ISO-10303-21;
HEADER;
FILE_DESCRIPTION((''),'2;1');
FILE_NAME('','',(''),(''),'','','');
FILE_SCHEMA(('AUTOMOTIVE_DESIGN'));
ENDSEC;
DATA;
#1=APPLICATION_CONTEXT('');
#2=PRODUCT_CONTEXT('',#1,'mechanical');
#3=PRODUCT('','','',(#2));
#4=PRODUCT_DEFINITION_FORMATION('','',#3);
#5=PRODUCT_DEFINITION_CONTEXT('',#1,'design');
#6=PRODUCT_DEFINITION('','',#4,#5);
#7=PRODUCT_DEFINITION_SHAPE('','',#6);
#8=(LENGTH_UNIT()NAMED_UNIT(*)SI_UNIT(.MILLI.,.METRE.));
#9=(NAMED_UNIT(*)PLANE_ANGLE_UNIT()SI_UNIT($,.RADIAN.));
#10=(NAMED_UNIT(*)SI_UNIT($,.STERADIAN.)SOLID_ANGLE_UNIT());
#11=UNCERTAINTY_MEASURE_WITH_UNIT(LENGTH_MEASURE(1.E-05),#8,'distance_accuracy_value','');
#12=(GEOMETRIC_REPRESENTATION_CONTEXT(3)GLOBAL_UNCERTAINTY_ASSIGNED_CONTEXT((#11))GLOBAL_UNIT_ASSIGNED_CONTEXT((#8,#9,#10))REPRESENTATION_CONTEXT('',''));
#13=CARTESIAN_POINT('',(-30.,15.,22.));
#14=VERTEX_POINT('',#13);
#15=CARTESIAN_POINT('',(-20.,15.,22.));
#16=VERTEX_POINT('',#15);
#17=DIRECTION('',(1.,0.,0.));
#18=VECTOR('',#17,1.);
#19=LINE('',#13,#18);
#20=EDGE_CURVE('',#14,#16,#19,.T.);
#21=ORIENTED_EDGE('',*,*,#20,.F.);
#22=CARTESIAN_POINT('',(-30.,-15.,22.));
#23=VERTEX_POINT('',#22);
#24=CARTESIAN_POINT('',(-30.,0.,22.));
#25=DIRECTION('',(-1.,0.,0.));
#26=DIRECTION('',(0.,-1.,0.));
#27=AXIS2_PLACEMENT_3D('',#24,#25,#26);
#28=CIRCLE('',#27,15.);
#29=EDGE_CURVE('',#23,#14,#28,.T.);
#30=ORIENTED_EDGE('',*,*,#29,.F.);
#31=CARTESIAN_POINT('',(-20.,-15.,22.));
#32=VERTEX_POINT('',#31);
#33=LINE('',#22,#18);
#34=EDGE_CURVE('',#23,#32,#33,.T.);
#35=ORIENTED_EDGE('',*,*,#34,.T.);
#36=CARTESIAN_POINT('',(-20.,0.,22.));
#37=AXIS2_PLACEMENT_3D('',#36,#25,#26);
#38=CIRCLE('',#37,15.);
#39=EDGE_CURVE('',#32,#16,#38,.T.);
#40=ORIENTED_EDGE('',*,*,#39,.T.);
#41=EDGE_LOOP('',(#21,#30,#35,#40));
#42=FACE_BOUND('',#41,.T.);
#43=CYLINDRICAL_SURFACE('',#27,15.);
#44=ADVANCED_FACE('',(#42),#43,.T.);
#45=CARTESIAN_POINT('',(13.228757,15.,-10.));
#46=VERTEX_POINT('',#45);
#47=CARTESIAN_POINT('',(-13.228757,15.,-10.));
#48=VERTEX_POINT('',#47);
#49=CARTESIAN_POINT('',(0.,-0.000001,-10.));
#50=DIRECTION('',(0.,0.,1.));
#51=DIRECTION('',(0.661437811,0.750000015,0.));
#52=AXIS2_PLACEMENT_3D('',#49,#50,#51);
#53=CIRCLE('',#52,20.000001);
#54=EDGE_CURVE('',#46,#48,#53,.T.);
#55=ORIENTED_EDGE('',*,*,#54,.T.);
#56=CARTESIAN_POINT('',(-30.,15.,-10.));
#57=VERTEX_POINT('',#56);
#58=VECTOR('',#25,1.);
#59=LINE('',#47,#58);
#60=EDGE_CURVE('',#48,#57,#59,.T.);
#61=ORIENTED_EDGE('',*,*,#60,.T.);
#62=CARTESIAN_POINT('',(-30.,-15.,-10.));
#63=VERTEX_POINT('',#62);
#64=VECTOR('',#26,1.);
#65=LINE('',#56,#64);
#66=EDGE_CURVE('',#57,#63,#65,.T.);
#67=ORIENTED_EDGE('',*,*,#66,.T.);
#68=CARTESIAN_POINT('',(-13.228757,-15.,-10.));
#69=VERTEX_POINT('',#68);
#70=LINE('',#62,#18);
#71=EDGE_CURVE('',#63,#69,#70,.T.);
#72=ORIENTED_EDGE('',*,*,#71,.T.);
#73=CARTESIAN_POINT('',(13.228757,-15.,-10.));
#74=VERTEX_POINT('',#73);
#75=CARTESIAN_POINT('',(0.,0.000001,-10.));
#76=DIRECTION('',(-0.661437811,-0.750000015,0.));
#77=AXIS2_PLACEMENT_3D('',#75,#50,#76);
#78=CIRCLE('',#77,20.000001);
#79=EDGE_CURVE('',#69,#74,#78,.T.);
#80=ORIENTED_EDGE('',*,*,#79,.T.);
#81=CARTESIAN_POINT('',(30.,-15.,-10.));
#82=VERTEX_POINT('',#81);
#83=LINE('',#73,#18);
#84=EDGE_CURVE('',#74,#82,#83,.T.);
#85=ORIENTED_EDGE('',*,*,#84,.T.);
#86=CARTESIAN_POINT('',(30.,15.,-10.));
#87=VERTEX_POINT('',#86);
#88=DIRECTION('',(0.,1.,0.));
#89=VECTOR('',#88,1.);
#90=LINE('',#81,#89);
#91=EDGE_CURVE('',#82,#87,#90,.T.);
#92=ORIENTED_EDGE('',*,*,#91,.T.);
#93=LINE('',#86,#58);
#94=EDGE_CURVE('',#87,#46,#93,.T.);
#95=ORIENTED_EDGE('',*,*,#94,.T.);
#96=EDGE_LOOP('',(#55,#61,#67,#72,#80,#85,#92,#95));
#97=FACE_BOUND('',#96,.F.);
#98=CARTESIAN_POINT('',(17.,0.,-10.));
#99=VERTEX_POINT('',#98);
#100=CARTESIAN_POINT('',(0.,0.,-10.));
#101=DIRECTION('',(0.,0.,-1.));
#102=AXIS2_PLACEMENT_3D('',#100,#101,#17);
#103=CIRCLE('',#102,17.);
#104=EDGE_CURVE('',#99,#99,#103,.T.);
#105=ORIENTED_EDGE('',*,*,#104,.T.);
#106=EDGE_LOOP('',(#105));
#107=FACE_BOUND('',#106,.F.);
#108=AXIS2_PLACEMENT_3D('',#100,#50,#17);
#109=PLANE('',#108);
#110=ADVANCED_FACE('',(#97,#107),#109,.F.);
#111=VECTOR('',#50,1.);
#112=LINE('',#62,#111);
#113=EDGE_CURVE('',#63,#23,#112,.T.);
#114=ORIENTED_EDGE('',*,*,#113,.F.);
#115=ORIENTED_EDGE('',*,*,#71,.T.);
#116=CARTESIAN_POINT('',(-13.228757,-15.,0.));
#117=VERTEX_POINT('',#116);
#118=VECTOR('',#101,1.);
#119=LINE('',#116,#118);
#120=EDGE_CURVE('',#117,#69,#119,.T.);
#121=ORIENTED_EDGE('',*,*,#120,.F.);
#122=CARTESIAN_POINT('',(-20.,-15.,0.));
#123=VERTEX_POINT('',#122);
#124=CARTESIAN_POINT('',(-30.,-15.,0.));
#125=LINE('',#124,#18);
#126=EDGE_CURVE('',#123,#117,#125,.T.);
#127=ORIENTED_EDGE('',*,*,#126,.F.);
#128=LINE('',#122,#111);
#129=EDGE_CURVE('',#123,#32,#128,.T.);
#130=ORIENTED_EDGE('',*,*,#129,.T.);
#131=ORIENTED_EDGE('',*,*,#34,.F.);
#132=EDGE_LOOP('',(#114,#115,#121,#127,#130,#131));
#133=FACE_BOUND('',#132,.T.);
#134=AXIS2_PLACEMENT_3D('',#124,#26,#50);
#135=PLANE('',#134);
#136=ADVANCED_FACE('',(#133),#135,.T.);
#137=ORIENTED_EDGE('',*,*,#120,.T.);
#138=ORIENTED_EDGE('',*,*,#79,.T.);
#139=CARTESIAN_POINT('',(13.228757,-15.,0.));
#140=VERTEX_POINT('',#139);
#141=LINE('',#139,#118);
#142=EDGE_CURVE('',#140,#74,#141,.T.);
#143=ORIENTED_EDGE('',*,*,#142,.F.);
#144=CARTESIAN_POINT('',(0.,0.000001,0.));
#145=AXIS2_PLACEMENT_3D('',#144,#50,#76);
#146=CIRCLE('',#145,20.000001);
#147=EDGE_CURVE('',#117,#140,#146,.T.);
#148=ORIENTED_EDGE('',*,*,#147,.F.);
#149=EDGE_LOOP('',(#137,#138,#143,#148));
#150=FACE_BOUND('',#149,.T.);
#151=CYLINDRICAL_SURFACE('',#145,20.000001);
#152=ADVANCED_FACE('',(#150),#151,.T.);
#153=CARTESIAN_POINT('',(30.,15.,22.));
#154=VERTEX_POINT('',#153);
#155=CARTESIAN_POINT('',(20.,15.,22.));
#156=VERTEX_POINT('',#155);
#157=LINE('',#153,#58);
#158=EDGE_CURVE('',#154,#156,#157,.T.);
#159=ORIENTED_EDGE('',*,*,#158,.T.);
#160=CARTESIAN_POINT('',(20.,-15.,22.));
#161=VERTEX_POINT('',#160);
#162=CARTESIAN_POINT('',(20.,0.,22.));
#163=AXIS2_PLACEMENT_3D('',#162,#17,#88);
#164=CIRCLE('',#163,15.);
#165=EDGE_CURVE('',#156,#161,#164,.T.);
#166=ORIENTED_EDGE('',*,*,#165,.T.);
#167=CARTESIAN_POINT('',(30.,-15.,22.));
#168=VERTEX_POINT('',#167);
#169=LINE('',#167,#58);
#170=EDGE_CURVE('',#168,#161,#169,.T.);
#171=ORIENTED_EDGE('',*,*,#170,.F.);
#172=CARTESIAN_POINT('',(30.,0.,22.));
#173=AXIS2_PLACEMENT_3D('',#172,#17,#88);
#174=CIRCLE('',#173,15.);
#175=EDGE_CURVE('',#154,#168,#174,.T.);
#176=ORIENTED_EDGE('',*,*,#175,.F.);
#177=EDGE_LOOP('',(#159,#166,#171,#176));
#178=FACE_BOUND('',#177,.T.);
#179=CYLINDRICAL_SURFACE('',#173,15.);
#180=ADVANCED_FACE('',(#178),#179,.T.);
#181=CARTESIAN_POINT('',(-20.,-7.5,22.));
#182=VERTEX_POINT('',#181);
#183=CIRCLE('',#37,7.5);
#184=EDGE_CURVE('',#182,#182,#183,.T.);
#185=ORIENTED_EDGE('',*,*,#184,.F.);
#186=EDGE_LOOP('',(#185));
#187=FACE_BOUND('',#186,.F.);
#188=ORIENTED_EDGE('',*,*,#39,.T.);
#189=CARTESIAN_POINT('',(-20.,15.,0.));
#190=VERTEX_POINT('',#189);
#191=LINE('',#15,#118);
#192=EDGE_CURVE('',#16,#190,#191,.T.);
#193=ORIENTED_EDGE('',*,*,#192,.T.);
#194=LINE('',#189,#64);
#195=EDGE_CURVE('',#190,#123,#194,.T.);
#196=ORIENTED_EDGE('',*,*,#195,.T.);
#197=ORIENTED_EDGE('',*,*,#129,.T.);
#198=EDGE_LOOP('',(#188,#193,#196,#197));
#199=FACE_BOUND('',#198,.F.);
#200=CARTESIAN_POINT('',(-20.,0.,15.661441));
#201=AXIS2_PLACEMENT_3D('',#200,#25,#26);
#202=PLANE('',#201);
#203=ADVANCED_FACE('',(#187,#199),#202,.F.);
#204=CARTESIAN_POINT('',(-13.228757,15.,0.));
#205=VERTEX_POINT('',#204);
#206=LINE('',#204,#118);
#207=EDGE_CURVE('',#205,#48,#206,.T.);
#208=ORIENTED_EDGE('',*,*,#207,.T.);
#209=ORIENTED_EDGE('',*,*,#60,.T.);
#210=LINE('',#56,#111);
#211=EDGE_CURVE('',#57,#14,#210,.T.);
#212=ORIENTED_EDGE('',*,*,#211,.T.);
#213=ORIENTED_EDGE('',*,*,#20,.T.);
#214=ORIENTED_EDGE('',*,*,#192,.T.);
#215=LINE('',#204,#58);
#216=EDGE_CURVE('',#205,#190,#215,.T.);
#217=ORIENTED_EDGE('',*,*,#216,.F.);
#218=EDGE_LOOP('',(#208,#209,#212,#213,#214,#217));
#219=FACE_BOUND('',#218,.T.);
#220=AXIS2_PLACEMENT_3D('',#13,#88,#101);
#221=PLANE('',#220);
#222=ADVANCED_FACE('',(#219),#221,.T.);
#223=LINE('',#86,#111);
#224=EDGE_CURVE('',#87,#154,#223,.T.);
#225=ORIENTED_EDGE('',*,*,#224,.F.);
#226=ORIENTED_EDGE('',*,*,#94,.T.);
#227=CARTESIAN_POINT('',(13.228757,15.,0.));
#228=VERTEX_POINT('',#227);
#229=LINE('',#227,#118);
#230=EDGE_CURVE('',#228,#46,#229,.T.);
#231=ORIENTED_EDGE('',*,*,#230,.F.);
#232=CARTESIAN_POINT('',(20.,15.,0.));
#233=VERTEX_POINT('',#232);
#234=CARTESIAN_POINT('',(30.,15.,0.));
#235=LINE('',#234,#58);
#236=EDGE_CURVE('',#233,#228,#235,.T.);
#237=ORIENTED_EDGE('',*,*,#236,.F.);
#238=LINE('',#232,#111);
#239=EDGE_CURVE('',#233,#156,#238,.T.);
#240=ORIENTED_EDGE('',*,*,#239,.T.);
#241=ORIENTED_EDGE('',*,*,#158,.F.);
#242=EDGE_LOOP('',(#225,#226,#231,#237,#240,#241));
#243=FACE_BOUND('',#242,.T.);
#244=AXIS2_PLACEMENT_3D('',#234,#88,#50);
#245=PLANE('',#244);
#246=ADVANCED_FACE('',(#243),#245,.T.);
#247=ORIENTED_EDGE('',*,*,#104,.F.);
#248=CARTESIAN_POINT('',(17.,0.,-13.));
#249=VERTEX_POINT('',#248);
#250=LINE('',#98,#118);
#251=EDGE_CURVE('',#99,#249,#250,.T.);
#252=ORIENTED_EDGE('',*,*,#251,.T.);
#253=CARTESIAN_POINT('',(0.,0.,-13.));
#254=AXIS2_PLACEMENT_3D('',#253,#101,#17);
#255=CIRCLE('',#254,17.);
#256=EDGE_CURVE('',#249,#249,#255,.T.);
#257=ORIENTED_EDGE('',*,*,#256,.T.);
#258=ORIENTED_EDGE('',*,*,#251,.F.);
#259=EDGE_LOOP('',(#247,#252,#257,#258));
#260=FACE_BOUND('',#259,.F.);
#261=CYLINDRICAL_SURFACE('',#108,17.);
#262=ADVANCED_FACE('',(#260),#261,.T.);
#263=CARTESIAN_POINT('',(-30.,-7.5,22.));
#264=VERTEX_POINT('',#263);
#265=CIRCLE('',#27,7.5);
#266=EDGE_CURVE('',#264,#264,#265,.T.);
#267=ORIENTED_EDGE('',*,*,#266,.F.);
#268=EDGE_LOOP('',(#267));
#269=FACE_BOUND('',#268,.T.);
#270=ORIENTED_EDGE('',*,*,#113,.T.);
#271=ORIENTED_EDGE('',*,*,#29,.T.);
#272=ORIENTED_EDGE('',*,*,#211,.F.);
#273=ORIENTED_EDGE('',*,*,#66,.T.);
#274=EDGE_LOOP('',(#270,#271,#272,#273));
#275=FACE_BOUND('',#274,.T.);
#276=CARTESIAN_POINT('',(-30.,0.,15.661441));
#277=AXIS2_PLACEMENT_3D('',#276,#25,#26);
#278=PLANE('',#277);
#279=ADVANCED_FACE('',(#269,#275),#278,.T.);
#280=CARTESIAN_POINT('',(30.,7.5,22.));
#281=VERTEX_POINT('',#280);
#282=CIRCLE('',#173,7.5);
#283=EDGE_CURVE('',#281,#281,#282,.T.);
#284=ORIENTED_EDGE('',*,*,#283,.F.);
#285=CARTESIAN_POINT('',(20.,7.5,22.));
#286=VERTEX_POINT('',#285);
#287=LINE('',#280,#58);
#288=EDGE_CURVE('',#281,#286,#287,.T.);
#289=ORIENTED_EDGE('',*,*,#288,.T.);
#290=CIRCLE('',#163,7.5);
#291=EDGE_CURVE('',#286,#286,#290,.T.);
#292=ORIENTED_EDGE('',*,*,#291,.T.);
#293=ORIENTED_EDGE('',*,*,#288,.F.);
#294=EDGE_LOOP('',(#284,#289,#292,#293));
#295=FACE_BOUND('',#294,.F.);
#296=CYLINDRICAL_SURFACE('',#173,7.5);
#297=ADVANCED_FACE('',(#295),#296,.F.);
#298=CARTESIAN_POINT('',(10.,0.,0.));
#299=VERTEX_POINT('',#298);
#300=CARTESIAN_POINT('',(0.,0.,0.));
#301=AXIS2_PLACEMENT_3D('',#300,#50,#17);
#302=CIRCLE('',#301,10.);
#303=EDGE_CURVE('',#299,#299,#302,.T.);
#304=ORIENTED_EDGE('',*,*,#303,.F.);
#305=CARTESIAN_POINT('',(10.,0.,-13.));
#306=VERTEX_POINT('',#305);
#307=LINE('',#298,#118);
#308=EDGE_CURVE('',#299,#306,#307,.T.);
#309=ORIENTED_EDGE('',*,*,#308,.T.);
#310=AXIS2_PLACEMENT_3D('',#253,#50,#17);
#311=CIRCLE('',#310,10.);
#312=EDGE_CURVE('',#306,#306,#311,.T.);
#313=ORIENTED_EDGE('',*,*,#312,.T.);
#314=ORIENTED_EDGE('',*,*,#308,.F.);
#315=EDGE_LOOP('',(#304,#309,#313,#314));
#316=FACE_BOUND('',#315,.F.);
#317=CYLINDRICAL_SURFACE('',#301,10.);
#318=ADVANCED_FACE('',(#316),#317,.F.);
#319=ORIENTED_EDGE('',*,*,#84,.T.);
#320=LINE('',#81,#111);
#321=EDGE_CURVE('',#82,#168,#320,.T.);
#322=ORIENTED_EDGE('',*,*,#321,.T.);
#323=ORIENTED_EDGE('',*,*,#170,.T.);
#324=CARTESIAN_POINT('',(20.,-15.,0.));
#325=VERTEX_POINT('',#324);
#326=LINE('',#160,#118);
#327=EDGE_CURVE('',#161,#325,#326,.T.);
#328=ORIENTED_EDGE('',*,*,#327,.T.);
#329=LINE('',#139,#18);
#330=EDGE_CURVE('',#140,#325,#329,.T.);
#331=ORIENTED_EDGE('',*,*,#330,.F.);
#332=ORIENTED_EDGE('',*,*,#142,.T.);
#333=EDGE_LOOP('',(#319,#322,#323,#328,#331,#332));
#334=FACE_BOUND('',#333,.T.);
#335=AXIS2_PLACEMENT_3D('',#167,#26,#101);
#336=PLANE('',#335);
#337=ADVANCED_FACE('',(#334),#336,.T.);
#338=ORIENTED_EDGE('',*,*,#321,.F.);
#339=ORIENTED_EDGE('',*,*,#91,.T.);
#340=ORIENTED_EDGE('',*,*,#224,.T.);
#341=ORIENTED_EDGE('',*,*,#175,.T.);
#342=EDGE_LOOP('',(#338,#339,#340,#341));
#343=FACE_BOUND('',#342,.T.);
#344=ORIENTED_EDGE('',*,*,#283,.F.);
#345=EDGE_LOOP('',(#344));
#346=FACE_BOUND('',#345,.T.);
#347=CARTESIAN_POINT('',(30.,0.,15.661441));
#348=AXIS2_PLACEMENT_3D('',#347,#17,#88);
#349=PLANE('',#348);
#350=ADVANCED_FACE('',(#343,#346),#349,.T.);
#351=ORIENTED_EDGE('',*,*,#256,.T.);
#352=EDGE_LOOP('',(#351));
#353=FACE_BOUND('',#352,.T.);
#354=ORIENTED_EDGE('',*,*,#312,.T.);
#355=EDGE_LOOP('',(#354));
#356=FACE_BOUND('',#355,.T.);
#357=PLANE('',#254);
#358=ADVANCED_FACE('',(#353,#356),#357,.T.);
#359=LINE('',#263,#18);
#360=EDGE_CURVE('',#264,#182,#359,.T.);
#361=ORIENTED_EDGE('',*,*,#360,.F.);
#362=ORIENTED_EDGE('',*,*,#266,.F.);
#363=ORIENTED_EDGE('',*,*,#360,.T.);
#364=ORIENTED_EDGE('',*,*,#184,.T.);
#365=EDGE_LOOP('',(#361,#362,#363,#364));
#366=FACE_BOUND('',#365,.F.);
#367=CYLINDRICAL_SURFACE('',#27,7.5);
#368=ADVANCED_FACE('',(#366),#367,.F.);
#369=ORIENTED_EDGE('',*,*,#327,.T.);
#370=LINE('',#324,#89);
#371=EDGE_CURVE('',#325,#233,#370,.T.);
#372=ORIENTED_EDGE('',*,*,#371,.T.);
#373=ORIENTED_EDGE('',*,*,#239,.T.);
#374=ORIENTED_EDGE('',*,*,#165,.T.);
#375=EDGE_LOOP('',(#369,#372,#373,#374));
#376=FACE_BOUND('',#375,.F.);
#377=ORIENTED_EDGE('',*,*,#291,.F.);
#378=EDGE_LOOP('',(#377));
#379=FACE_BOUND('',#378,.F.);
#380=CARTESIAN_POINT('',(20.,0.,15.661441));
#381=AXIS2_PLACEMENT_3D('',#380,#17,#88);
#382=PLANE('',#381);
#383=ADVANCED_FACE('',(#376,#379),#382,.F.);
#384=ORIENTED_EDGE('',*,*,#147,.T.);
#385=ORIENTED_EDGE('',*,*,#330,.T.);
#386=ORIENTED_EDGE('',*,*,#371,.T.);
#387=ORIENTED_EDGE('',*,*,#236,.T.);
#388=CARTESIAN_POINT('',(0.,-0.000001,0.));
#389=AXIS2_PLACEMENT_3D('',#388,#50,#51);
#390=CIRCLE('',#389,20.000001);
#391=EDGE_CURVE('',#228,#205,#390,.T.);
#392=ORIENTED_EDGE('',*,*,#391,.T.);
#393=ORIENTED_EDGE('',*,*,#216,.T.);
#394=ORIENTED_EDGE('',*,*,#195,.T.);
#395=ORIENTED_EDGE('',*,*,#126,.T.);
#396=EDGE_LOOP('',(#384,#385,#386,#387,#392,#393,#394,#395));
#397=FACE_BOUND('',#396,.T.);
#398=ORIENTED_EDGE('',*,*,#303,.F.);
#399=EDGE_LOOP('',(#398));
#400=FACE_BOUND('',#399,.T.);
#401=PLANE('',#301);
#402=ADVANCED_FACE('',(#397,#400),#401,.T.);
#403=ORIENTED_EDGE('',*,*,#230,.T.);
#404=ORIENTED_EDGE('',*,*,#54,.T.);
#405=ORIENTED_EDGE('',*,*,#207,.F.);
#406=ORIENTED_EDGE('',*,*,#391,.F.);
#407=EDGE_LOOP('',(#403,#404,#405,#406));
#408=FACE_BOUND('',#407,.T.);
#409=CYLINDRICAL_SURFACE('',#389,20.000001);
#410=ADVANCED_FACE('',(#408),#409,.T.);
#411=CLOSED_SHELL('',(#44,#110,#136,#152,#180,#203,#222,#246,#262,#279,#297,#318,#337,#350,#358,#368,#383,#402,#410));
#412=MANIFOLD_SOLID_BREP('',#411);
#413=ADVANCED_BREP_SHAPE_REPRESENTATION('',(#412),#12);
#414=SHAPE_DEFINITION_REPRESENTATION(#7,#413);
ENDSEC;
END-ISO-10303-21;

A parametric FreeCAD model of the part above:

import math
import FreeCAD as App
import Part
import Sketcher

doc = App.newDocument("Part")
body = doc.addObject("PartDesign::Body", "Body")

# Sketch on XY plane
sketch1 = doc.addObject("Sketcher::SketchObject", "Sketch")
body.addObject(sketch1)
sketch1.AttachmentSupport = (doc.XY_Plane, [""])
sketch1.MapMode = "FlatFace"
sketch1.addGeometry(Part.LineSegment(App.Vector(-30, -15, 0), App.Vector(-13.228757, -15, 0)), False)
sketch1.addGeometry(Part.ArcOfCircle(Part.Circle(App.Vector(0, 0.000001, 0), App.Vector(0, 0, 1), 20.000001), math.radians(-131.409621), math.radians(-48.590379)), False)
sketch1.addGeometry(Part.LineSegment(App.Vector(13.228757, -15, 0), App.Vector(30, -15, 0)), False)
sketch1.addGeometry(Part.LineSegment(App.Vector(30, -15, 0), App.Vector(30, 15, 0)), False)
sketch1.addGeometry(Part.LineSegment(App.Vector(30, 15, 0), App.Vector(13.228757, 15, 0)), False)
sketch1.addGeometry(Part.ArcOfCircle(Part.Circle(App.Vector(0, -0.000001, 0), App.Vector(0, 0, 1), 20.000001), math.radians(48.590379), math.radians(131.409621)), False)
sketch1.addGeometry(Part.LineSegment(App.Vector(-13.228757, 15, 0), App.Vector(-30, 15, 0)), False)
sketch1.addGeometry(Part.LineSegment(App.Vector(-30, 15, 0), App.Vector(-30, -15, 0)), False)
sketch1.addConstraint(Sketcher.Constraint("Coincident", 0, 2, 1, 1))
sketch1.addConstraint(Sketcher.Constraint("Coincident", 1, 2, 2, 1))
sketch1.addConstraint(Sketcher.Constraint("Coincident", 2, 2, 3, 1))
sketch1.addConstraint(Sketcher.Constraint("Coincident", 3, 2, 4, 1))
sketch1.addConstraint(Sketcher.Constraint("Coincident", 4, 2, 5, 1))
sketch1.addConstraint(Sketcher.Constraint("Coincident", 5, 2, 6, 1))
sketch1.addConstraint(Sketcher.Constraint("Coincident", 6, 2, 7, 1))
sketch1.addConstraint(Sketcher.Constraint("Coincident", 7, 2, 0, 1))
sketch1.addConstraint(Sketcher.Constraint("Horizontal", 0))
sketch1.addConstraint(Sketcher.Constraint("Horizontal", 2))
sketch1.addConstraint(Sketcher.Constraint("Vertical", 3))
sketch1.addConstraint(Sketcher.Constraint("Horizontal", 4))
sketch1.addConstraint(Sketcher.Constraint("Horizontal", 6))
sketch1.addConstraint(Sketcher.Constraint("Vertical", 7))
sketch1.addConstraint(Sketcher.Constraint("Coincident", 1, 3, -1, 1))
sketch1.addConstraint(Sketcher.Constraint("Coincident", 5, 3, -1, 1))
sketch1.addConstraint(Sketcher.Constraint("Equal", 1, 5))
sketch1.addConstraint(Sketcher.Constraint("Symmetric", 2, 2, 6, 2, -1, 1))
sketch1.addConstraint(Sketcher.Constraint("Horizontal", 0, 2, 1, 2))
sketch1.addConstraint(Sketcher.Constraint("Horizontal", 4, 2, 5, 2))
sketch1.addConstraint(Sketcher.Constraint("Radius", 1, 20.000001))
sketch1.addConstraint(Sketcher.Constraint("DistanceY", 3, 1, 3, 2, 30.0))
sketch1.addConstraint(Sketcher.Constraint("DistanceX", -1, 1, 2, 2, 30.0))
pad1 = doc.addObject("PartDesign::Pad", "Pad")
body.addObject(pad1)
pad1.Profile = sketch1
pad1.Length = 10
pad1.Reversed = True

# Sketch on XY plane
sketch2 = doc.addObject("Sketcher::SketchObject", "Sketch001")
body.addObject(sketch2)
sketch2.AttachmentSupport = (doc.XY_Plane, [""])
sketch2.MapMode = "FlatFace"
sketch2.AttachmentOffset = App.Placement(App.Vector(0, 0, -10), App.Rotation())
sketch2.addGeometry(Part.Circle(App.Vector(0, 0, 0), App.Vector(0, 0, 1), 17), False)
sketch2.addConstraint(Sketcher.Constraint("Coincident", 0, 3, -1, 1))
sketch2.addConstraint(Sketcher.Constraint("Diameter", 0, 34.0))
pad2 = doc.addObject("PartDesign::Pad", "Pad001")
body.addObject(pad2)
pad2.Profile = sketch2
pad2.Length = 3
pad2.Reversed = True

# Sketch on XY plane
sketch3 = doc.addObject("Sketcher::SketchObject", "Sketch002")
body.addObject(sketch3)
sketch3.AttachmentSupport = (doc.XY_Plane, [""])
sketch3.MapMode = "FlatFace"
sketch3.addGeometry(Part.Circle(App.Vector(0, 0, 0), App.Vector(0, 0, 1), 10), False)
sketch3.addConstraint(Sketcher.Constraint("Coincident", 0, 3, -1, 1))
sketch3.addConstraint(Sketcher.Constraint("Diameter", 0, 20.0))
pocket1 = doc.addObject("PartDesign::Pocket", "Pocket")
body.addObject(pocket1)
pocket1.Profile = sketch3
pocket1.Type = "ThroughAll"

# Sketch on YZ plane
sketch4 = doc.addObject("Sketcher::SketchObject", "Sketch003")
body.addObject(sketch4)
sketch4.AttachmentSupport = (doc.YZ_Plane, [""])
sketch4.MapMode = "FlatFace"
sketch4.AttachmentOffset = App.Placement(App.Vector(0, 0, 30), App.Rotation())
sketch4.addGeometry(Part.LineSegment(App.Vector(-15, 0, 0), App.Vector(15, 0, 0)), False)
sketch4.addGeometry(Part.LineSegment(App.Vector(15, 0, 0), App.Vector(15, 22, 0)), False)
sketch4.addGeometry(Part.ArcOfCircle(Part.Circle(App.Vector(0, 22, 0), App.Vector(0, 0, 1), 15), math.radians(0), math.radians(180)), False)
sketch4.addGeometry(Part.LineSegment(App.Vector(-15, 22, 0), App.Vector(-15, 0, 0)), False)
sketch4.addGeometry(Part.Circle(App.Vector(0, 22, 0), App.Vector(0, 0, 1), 7.5), False)
sketch4.addConstraint(Sketcher.Constraint("Coincident", 0, 2, 1, 1))
sketch4.addConstraint(Sketcher.Constraint("Tangent", 1, 2, 2, 1))
sketch4.addConstraint(Sketcher.Constraint("Tangent", 2, 2, 3, 1))
sketch4.addConstraint(Sketcher.Constraint("Coincident", 3, 2, 0, 1))
sketch4.addConstraint(Sketcher.Constraint("Horizontal", 0))
sketch4.addConstraint(Sketcher.Constraint("Vertical", 1))
sketch4.addConstraint(Sketcher.Constraint("Vertical", 3))
sketch4.addConstraint(Sketcher.Constraint("Coincident", 4, 3, 2, 3))
sketch4.addConstraint(Sketcher.Constraint("Symmetric", 0, 2, 3, 2, -1, 1))
sketch4.addConstraint(Sketcher.Constraint("Diameter", 4, 15.0))
sketch4.addConstraint(Sketcher.Constraint("Radius", 2, 15.0))
sketch4.addConstraint(Sketcher.Constraint("DistanceY", 1, 1, 1, 2, 22.0))
pad3 = doc.addObject("PartDesign::Pad", "Pad002")
body.addObject(pad3)
pad3.Profile = sketch4
pad3.Length = 10
pad3.Reversed = True

# Sketch on YZ plane
sketch5 = doc.addObject("Sketcher::SketchObject", "Sketch004")
body.addObject(sketch5)
sketch5.AttachmentSupport = (doc.YZ_Plane, [""])
sketch5.MapMode = "FlatFace"
sketch5.AttachmentOffset = App.Placement(App.Vector(0, 0, -30), App.Rotation())
sketch5.addGeometry(Part.LineSegment(App.Vector(15, 22, 0), App.Vector(15, 0, 0)), False)
sketch5.addGeometry(Part.LineSegment(App.Vector(15, 0, 0), App.Vector(-15, 0, 0)), False)
sketch5.addGeometry(Part.LineSegment(App.Vector(-15, 0, 0), App.Vector(-15, 22, 0)), False)
sketch5.addGeometry(Part.ArcOfCircle(Part.Circle(App.Vector(0, 22, 0), App.Vector(0, 0, 1), 15), math.radians(0), math.radians(180)), False)
sketch5.addGeometry(Part.Circle(App.Vector(0, 22, 0), App.Vector(0, 0, 1), 7.5), False)
sketch5.addConstraint(Sketcher.Constraint("Coincident", 0, 2, 1, 1))
sketch5.addConstraint(Sketcher.Constraint("Coincident", 1, 2, 2, 1))
sketch5.addConstraint(Sketcher.Constraint("Tangent", 2, 2, 3, 2))
sketch5.addConstraint(Sketcher.Constraint("Tangent", 3, 1, 0, 1))
sketch5.addConstraint(Sketcher.Constraint("Vertical", 0))
sketch5.addConstraint(Sketcher.Constraint("Horizontal", 1))
sketch5.addConstraint(Sketcher.Constraint("Vertical", 2))
sketch5.addConstraint(Sketcher.Constraint("Coincident", 4, 3, 3, 3))
sketch5.addConstraint(Sketcher.Constraint("Symmetric", 0, 2, 1, 2, -1, 1))
sketch5.addConstraint(Sketcher.Constraint("Diameter", 4, 15.0))
sketch5.addConstraint(Sketcher.Constraint("Radius", 3, 15.0))
sketch5.addConstraint(Sketcher.Constraint("DistanceY", 0, 2, 0, 1, 22.0))
pad4 = doc.addObject("PartDesign::Pad", "Pad003")
body.addObject(pad4)
pad4.Profile = sketch5
pad4.Length = 10

doc.recompute()
